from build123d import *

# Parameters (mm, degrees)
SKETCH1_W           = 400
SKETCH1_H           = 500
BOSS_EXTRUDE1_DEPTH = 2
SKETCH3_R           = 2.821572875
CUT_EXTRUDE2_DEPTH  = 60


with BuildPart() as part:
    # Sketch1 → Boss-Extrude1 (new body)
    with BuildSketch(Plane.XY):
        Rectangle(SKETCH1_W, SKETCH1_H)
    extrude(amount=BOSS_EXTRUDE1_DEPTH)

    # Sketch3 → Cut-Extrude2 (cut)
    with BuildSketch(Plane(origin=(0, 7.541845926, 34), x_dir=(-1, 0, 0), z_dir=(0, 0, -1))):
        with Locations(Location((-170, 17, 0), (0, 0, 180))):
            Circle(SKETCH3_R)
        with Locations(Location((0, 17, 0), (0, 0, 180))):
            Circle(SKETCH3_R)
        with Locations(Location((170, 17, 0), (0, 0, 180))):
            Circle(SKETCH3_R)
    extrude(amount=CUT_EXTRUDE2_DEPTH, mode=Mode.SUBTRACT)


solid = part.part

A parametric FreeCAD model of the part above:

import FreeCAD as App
import Part
import Sketcher

doc = App.newDocument("Part")
body = doc.addObject("PartDesign::Body", "Body")

sketch1 = doc.addObject("Sketcher::SketchObject", "Sketch")
body.addObject(sketch1)
sketch1.AttachmentSupport = (doc.XY_Plane, [""])
sketch1.MapMode = "FlatFace"
sketch1.addGeometry([
    Part.LineSegment(App.Vector(-200, 250, 0), App.Vector(-200, -250, 0)),
    Part.LineSegment(App.Vector(-200, -250, 0), App.Vector(200, -250, 0)),
    Part.LineSegment(App.Vector(200, -250, 0), App.Vector(200, 250, 0)),
    Part.LineSegment(App.Vector(200, 250, 0), App.Vector(-200, 250, 0)),
], False)
sketch1.addConstraint([
    Sketcher.Constraint("Coincident", 0, 2, 1, 1),
    Sketcher.Constraint("Coincident", 1, 2, 2, 1),
    Sketcher.Constraint("Coincident", 2, 2, 3, 1),
    Sketcher.Constraint("Coincident", 3, 2, 0, 1),
    Sketcher.Constraint("Vertical", 0),
    Sketcher.Constraint("Horizontal", 1),
    Sketcher.Constraint("Vertical", 2),
    Sketcher.Constraint("Horizontal", 3),
    Sketcher.Constraint("Symmetric", 0, 2, 2, 2, -1, 1),
    Sketcher.Constraint("DistanceX", 1, 1, 1, 2, 400.0),
    Sketcher.Constraint("DistanceY", 0, 2, 0, 1, 500.0),
])
pad1 = doc.addObject("PartDesign::Pad", "Pad")
body.addObject(pad1)
pad1.Profile = sketch1
pad1.Length = 2

sketch2 = doc.addObject("Sketcher::SketchObject", "Sketch001")
body.addObject(sketch2)
sketch2.AttachmentSupport = (doc.XY_Plane, [""])
sketch2.MapMode = "FlatFace"
sketch2.AttachmentOffset = App.Placement(App.Vector(0, 0, 34), App.Rotation())
sketch2.addGeometry([
    Part.Circle(App.Vector(170, 24.5, 0), App.Vector(0, 0, 1), 2.8),
    Part.Circle(App.Vector(0, 24.5, 0), App.Vector(0, 0, 1), 2.8),
    Part.Circle(App.Vector(-170, 24.5, 0), App.Vector(0, 0, 1), 2.8),
], False)
sketch2.addConstraint([
    Sketcher.Constraint("Equal", 0, 1),
    Sketcher.Constraint("Equal", 1, 2),
    Sketcher.Constraint("Symmetric", 0, 3, 2, 3, -2),
    Sketcher.Constraint("PointOnObject", 1, 3, -2),
    Sketcher.Constraint("Horizontal", 0, 3, 1, 3),
    Sketcher.Constraint("DistanceX", -1, 1, 0, 3, 170.0),
    Sketcher.Constraint("Diameter", 0, 5.643146),
    Sketcher.Constraint("DistanceY", -1, 1, 0, 3, 24.541846),
])
pocket1 = doc.addObject("PartDesign::Pocket", "Pocket")
body.addObject(pocket1)
pocket1.Profile = sketch2
pocket1.Length = 60

doc.recompute()
